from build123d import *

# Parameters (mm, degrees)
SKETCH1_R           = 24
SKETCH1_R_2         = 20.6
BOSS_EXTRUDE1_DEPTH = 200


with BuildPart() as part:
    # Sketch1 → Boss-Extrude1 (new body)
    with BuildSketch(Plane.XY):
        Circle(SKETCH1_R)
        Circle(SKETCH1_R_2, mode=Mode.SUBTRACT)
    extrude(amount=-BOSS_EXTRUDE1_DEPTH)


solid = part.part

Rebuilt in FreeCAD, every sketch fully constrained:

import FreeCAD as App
import Part
import Sketcher

V = App.Vector
Q = App.Units.Quantity

doc = App.newDocument("Part")
body = doc.addObject("PartDesign::Body", "Body")

# Sketch on XY plane
sketch1 = body.newObject("Sketcher::SketchObject", "Sketch")
sketch1.AttachmentSupport = (doc.getObject("XY_Plane"), [""])
sketch1.MapMode = "FlatFace"
sketch1.addGeometry(Part.Circle(V(0, 0, 0), V(0, 0, 1), 24), False)
sketch1.addGeometry(Part.Circle(V(0, 0, 0), V(0, 0, 1), 21), False)
sketch1.addConstraint(Sketcher.Constraint("Coincident", 0, 3, -1, 1))
sketch1.addConstraint(Sketcher.Constraint("Coincident", 1, 3, -1, 1))
sketch1.addConstraint(Sketcher.Constraint("Diameter", 0, Q("48 mm")))
sketch1.addConstraint(Sketcher.Constraint("Diameter", 1, Q("41.2 mm")))
pad1 = body.newObject("PartDesign::Pad", "Pad")
pad1.Profile = sketch1
pad1.Length = 200
pad1.Reversed = True

doc.recompute()
